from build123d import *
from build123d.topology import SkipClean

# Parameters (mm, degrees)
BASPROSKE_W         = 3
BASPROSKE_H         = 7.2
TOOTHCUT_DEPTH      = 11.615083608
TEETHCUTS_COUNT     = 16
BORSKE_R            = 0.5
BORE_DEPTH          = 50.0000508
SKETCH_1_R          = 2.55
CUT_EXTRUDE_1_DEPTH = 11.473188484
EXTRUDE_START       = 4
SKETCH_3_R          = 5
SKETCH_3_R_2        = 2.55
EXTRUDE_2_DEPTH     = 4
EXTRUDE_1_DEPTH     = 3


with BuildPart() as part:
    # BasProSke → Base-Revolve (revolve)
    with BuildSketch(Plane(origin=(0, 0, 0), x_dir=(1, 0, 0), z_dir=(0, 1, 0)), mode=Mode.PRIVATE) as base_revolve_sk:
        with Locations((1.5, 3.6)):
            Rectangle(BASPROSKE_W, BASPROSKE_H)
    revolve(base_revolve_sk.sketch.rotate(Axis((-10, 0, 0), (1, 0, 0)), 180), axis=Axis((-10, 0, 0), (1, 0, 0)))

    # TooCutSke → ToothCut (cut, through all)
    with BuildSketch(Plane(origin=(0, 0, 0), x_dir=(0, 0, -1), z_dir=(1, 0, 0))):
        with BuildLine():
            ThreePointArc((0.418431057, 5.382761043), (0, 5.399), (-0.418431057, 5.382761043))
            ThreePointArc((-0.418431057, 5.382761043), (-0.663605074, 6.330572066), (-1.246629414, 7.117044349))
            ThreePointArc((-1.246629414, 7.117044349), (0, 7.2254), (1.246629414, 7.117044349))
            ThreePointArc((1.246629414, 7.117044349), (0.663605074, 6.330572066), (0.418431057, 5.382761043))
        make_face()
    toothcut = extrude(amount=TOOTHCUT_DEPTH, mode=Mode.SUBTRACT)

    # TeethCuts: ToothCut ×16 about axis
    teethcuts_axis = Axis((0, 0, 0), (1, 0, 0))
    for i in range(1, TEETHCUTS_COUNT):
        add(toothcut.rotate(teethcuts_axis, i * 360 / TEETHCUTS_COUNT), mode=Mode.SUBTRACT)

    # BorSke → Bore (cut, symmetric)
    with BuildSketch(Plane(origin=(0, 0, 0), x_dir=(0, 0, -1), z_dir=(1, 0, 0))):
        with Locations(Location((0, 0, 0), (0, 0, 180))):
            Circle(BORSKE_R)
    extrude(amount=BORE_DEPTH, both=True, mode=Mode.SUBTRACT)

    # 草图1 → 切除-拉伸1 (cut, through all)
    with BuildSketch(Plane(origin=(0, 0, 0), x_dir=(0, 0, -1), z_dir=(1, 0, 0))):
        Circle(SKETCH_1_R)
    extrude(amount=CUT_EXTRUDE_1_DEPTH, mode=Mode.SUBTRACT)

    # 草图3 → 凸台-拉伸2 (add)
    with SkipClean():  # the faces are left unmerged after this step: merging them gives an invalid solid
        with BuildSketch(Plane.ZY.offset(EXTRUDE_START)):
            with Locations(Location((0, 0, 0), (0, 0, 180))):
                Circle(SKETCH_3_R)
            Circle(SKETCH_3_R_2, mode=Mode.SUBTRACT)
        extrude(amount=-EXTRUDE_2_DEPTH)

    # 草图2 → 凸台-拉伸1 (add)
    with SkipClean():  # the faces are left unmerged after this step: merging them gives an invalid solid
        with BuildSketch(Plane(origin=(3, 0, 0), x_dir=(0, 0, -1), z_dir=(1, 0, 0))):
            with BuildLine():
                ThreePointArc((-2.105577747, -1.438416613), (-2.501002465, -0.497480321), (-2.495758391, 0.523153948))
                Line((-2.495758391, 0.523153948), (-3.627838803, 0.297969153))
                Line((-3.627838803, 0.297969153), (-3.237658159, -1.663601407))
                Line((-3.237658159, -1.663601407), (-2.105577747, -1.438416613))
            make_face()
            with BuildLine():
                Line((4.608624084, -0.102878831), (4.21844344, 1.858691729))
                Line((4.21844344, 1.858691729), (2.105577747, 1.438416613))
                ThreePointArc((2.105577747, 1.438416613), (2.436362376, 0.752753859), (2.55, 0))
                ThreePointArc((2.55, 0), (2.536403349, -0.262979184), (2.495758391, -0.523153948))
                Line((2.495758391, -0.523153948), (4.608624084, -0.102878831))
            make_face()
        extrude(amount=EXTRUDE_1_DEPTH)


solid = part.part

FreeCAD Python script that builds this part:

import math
import FreeCAD as App
import Part
import Sketcher
Q = App.Units.Quantity

doc = App.newDocument("Part")
body = doc.addObject("PartDesign::Body", "Body")

sketch1 = doc.addObject("Sketcher::SketchObject", "Sketch")
body.addObject(sketch1)
sketch1.AttachmentSupport = (doc.XZ_Plane, [""])
sketch1.MapMode = "FlatFace"
sketch1.addGeometry([
    Part.LineSegment(App.Vector(0, -7.2, 0), App.Vector(0, 0, 0)),
    Part.LineSegment(App.Vector(0, 0, 0), App.Vector(3, 0, 0)),
    Part.LineSegment(App.Vector(3, 0, 0), App.Vector(3, -7.2, 0)),
    Part.LineSegment(App.Vector(3, -7.2, 0), App.Vector(0, -7.2, 0)),
], False)
sketch1.addConstraint([
    Sketcher.Constraint("Coincident", 0, 2, 1, 1),
    Sketcher.Constraint("Coincident", 1, 2, 2, 1),
    Sketcher.Constraint("Coincident", 2, 2, 3, 1),
    Sketcher.Constraint("Coincident", 3, 2, 0, 1),
    Sketcher.Constraint("Vertical", 0),
    Sketcher.Constraint("Horizontal", 1),
    Sketcher.Constraint("Vertical", 2),
    Sketcher.Constraint("Horizontal", 3),
    Sketcher.Constraint("Coincident", 0, 2, -1, 1),
    Sketcher.Constraint("DistanceX", 1, 1, 1, 2, Q("3 mm")),
    Sketcher.Constraint("DistanceY", 0, 1, 0, 2, Q("7.2 mm")),
])
revolution = doc.addObject("PartDesign::Revolution", "Revolution")
body.addObject(revolution)
revolution.Profile = sketch1
revolution.ReferenceAxis = (sketch1, ["H_Axis"])
revolution.Angle = 360

sketch2 = doc.addObject("Sketcher::SketchObject", "Sketch001")
body.addObject(sketch2)
sketch2.AttachmentSupport = (doc.YZ_Plane, [""])
sketch2.MapMode = "FlatFace"
sketch2.addGeometry([
    Part.ArcOfCircle(Part.Circle(App.Vector(0, 0, 0), App.Vector(0, 0, 1), 5.4), math.radians(-4.44), math.radians(4.44)),
    Part.ArcOfCircle(Part.Circle(App.Vector(5.2, -3, 0), App.Vector(0, 0, 1), 2.6), math.radians(42), math.radians(87)),
    Part.ArcOfCircle(Part.Circle(App.Vector(0, 0, 0), App.Vector(0, 0, 1), 7.2), math.radians(-9.94), math.radians(9.94)),
    Part.ArcOfCircle(Part.Circle(App.Vector(5.2, 3, 0), App.Vector(0, 0, 1), 2.6), math.radians(-87), math.radians(-42)),
], False)
sketch2.addConstraint([
    Sketcher.Constraint("Coincident", 0, 1, 1, 2),
    Sketcher.Constraint("Coincident", 1, 1, 2, 1),
    Sketcher.Constraint("Coincident", 2, 2, 3, 2),
    Sketcher.Constraint("Coincident", 3, 1, 0, 2),
    Sketcher.Constraint("Coincident", 0, 3, -1, 1),
    Sketcher.Constraint("Coincident", 2, 3, -1, 1),
    Sketcher.Constraint("Equal", 1, 3),
    Sketcher.Constraint("Symmetric", 1, 3, 3, 3, -1),
    Sketcher.Constraint("Radius", 1, Q("2.56 mm")),
    Sketcher.Constraint("Radius", 0, Q("5.399 mm")),
    Sketcher.Constraint("Radius", 2, Q("7.2254 mm")),
    Sketcher.Constraint("DistanceY", 1, 1, 0, 1, Q("0.828198 mm")),
    Sketcher.Constraint("DistanceY", 1, 3, -1, 1, Q("2.973712 mm")),
])
pocket1 = doc.addObject("PartDesign::Pocket", "Pocket")
body.addObject(pocket1)
pocket1.Profile = sketch2
pocket1.Type = "ThroughAll"
pocket1.Reversed = True
doc.recompute()

polarpattern = doc.addObject("PartDesign::PolarPattern", "PolarPattern")
body.addObject(polarpattern)
polarpattern.Originals = [pocket1]
polarpattern.Axis = (doc.X_Axis, [""])
polarpattern.Angle = 360
polarpattern.Occurrences = 16
body.Tip = polarpattern

sketch3 = doc.addObject("Sketcher::SketchObject", "Sketch002")
body.addObject(sketch3)
sketch3.AttachmentSupport = (doc.YZ_Plane, [""])
sketch3.MapMode = "FlatFace"
sketch3.addGeometry(Part.Circle(App.Vector(0, 0, 0), App.Vector(0, 0, 1), 0.5), False)
sketch3.addConstraint([
    Sketcher.Constraint("Coincident", 0, 3, -1, 1),
    Sketcher.Constraint("Diameter", 0, Q("1 mm")),
])
pocket2 = doc.addObject("PartDesign::Pocket", "Pocket001")
body.addObject(pocket2)
pocket2.Profile = sketch3
pocket2.Length = 100.000102
pocket2.Midplane = True

sketch4 = doc.addObject("Sketcher::SketchObject", "Sketch003")
body.addObject(sketch4)
sketch4.AttachmentSupport = (doc.YZ_Plane, [""])
sketch4.MapMode = "FlatFace"
sketch4.addGeometry(Part.Circle(App.Vector(0, 0, 0), App.Vector(0, 0, 1), 2.5), False)
sketch4.addConstraint([
    Sketcher.Constraint("Coincident", 0, 3, -1, 1),
    Sketcher.Constraint("Diameter", 0, Q("5.1 mm")),
])
pocket3 = doc.addObject("PartDesign::Pocket", "Pocket002")
body.addObject(pocket3)
pocket3.Profile = sketch4
pocket3.Type = "ThroughAll"
pocket3.Reversed = True

sketch5 = doc.addObject("Sketcher::SketchObject", "Sketch004")
body.addObject(sketch5)
sketch5.AttachmentSupport = (doc.YZ_Plane, [""])
sketch5.MapMode = "FlatFace"
sketch5.AttachmentOffset = App.Placement(App.Vector(0, 0, -4), App.Rotation())
sketch5.addGeometry([
    Part.Circle(App.Vector(0, 0, 0), App.Vector(0, 0, 1), 5),
    Part.Circle(App.Vector(0, 0, 0), App.Vector(0, 0, 1), 2.5),
], False)
sketch5.addConstraint([
    Sketcher.Constraint("Coincident", 0, 3, -1, 1),
    Sketcher.Constraint("Coincident", 1, 3, -1, 1),
    Sketcher.Constraint("Diameter", 0, Q("10 mm")),
    Sketcher.Constraint("Diameter", 1, Q("5.1 mm")),
])
pad1 = doc.addObject("PartDesign::Pad", "Pad")
body.addObject(pad1)
pad1.Profile = sketch5
pad1.Length = 4

sketch6 = doc.addObject("Sketcher::SketchObject", "Sketch005")
body.addObject(sketch6)
sketch6.AttachmentSupport = (doc.YZ_Plane, [""])
sketch6.MapMode = "FlatFace"
sketch6.AttachmentOffset = App.Placement(App.Vector(0, 0, 3), App.Rotation())
sketch6.addGeometry([
    Part.ArcOfCircle(Part.Circle(App.Vector(0, 0, 0), App.Vector(0, 0, 1), 2.6), math.radians(78), math.radians(124)),
    Part.LineSegment(App.Vector(0.5, 2.5, 0), App.Vector(0.3, 3.6, 0)),
    Part.LineSegment(App.Vector(0.3, 3.6, 0), App.Vector(-1.7, 3.2, 0)),
    Part.LineSegment(App.Vector(-1.7, 3.2, 0), App.Vector(-1.4, 2.1, 0)),
    Part.LineSegment(App.Vector(-0.1, -4.6, 0), App.Vector(1.9, -4.2, 0)),
    Part.LineSegment(App.Vector(1.9, -4.2, 0), App.Vector(1.4, -2.1, 0)),
    Part.ArcOfCircle(Part.Circle(App.Vector(0, 0, 0), App.Vector(0, 0, 1), 2.6), math.radians(-90), math.radians(-56)),
    Part.ArcOfCircle(Part.Circle(App.Vector(0, 0, 0), App.Vector(0, 0, 1), 2.5), math.radians(-101.84), math.radians(-90)),
    Part.LineSegment(App.Vector(-0.5, -2.5, 0), App.Vector(-0.1, -4.6, 0)),
], False)
sketch6.addConstraint([
    Sketcher.Constraint("Coincident", 0, 1, 1, 1),
    Sketcher.Constraint("Coincident", 1, 2, 2, 1),
    Sketcher.Constraint("Coincident", 2, 2, 3, 1),
    Sketcher.Constraint("Coincident", 3, 2, 0, 2),
    Sketcher.Constraint("Coincident", 4, 2, 5, 1),
    Sketcher.Constraint("Coincident", 5, 2, 6, 2),
    Sketcher.Constraint("Tangent", 6, 1, 7, 2),
    Sketcher.Constraint("Coincident", 7, 1, 8, 1),
    Sketcher.Constraint("Coincident", 8, 2, 4, 1),
    Sketcher.Constraint("Coincident", 0, 3, -1, 1),
    Sketcher.Constraint("Coincident", 6, 3, -1, 1),
    Sketcher.Constraint("Equal", 0, 6),
    Sketcher.Constraint("Equal", 6, 7),
    Sketcher.Constraint("PointOnObject", 6, 1, -2),
    Sketcher.Constraint("Perpendicular", 1, 2),
    Sketcher.Constraint("Perpendicular", 2, 3),
    Sketcher.Constraint("Perpendicular", 3, 4),
    Sketcher.Constraint("Perpendicular", 4, 5),
    Sketcher.Constraint("Parallel", 5, 8),
    Sketcher.Constraint("Equal", 1, 3),
    Sketcher.Constraint("Equal", 2, 4),
    Sketcher.Constraint("Equal", 5, 8),
    Sketcher.Constraint("Radius", 0, Q("2.55 mm")),
    Sketcher.Constraint("Distance", 2, Q("2 mm")),
    Sketcher.Constraint("Angle", 1, Q("101.25 deg")),
    Sketcher.Constraint("DistanceX", 2, 2, -1, 1, Q("1.663601 mm")),
    Sketcher.Constraint("DistanceY", 4, 2, 0, 1, Q("6.714202 mm")),
])
pad2 = doc.addObject("PartDesign::Pad", "Pad001")
body.addObject(pad2)
pad2.Profile = sketch6
pad2.Length = 3

doc.recompute()
